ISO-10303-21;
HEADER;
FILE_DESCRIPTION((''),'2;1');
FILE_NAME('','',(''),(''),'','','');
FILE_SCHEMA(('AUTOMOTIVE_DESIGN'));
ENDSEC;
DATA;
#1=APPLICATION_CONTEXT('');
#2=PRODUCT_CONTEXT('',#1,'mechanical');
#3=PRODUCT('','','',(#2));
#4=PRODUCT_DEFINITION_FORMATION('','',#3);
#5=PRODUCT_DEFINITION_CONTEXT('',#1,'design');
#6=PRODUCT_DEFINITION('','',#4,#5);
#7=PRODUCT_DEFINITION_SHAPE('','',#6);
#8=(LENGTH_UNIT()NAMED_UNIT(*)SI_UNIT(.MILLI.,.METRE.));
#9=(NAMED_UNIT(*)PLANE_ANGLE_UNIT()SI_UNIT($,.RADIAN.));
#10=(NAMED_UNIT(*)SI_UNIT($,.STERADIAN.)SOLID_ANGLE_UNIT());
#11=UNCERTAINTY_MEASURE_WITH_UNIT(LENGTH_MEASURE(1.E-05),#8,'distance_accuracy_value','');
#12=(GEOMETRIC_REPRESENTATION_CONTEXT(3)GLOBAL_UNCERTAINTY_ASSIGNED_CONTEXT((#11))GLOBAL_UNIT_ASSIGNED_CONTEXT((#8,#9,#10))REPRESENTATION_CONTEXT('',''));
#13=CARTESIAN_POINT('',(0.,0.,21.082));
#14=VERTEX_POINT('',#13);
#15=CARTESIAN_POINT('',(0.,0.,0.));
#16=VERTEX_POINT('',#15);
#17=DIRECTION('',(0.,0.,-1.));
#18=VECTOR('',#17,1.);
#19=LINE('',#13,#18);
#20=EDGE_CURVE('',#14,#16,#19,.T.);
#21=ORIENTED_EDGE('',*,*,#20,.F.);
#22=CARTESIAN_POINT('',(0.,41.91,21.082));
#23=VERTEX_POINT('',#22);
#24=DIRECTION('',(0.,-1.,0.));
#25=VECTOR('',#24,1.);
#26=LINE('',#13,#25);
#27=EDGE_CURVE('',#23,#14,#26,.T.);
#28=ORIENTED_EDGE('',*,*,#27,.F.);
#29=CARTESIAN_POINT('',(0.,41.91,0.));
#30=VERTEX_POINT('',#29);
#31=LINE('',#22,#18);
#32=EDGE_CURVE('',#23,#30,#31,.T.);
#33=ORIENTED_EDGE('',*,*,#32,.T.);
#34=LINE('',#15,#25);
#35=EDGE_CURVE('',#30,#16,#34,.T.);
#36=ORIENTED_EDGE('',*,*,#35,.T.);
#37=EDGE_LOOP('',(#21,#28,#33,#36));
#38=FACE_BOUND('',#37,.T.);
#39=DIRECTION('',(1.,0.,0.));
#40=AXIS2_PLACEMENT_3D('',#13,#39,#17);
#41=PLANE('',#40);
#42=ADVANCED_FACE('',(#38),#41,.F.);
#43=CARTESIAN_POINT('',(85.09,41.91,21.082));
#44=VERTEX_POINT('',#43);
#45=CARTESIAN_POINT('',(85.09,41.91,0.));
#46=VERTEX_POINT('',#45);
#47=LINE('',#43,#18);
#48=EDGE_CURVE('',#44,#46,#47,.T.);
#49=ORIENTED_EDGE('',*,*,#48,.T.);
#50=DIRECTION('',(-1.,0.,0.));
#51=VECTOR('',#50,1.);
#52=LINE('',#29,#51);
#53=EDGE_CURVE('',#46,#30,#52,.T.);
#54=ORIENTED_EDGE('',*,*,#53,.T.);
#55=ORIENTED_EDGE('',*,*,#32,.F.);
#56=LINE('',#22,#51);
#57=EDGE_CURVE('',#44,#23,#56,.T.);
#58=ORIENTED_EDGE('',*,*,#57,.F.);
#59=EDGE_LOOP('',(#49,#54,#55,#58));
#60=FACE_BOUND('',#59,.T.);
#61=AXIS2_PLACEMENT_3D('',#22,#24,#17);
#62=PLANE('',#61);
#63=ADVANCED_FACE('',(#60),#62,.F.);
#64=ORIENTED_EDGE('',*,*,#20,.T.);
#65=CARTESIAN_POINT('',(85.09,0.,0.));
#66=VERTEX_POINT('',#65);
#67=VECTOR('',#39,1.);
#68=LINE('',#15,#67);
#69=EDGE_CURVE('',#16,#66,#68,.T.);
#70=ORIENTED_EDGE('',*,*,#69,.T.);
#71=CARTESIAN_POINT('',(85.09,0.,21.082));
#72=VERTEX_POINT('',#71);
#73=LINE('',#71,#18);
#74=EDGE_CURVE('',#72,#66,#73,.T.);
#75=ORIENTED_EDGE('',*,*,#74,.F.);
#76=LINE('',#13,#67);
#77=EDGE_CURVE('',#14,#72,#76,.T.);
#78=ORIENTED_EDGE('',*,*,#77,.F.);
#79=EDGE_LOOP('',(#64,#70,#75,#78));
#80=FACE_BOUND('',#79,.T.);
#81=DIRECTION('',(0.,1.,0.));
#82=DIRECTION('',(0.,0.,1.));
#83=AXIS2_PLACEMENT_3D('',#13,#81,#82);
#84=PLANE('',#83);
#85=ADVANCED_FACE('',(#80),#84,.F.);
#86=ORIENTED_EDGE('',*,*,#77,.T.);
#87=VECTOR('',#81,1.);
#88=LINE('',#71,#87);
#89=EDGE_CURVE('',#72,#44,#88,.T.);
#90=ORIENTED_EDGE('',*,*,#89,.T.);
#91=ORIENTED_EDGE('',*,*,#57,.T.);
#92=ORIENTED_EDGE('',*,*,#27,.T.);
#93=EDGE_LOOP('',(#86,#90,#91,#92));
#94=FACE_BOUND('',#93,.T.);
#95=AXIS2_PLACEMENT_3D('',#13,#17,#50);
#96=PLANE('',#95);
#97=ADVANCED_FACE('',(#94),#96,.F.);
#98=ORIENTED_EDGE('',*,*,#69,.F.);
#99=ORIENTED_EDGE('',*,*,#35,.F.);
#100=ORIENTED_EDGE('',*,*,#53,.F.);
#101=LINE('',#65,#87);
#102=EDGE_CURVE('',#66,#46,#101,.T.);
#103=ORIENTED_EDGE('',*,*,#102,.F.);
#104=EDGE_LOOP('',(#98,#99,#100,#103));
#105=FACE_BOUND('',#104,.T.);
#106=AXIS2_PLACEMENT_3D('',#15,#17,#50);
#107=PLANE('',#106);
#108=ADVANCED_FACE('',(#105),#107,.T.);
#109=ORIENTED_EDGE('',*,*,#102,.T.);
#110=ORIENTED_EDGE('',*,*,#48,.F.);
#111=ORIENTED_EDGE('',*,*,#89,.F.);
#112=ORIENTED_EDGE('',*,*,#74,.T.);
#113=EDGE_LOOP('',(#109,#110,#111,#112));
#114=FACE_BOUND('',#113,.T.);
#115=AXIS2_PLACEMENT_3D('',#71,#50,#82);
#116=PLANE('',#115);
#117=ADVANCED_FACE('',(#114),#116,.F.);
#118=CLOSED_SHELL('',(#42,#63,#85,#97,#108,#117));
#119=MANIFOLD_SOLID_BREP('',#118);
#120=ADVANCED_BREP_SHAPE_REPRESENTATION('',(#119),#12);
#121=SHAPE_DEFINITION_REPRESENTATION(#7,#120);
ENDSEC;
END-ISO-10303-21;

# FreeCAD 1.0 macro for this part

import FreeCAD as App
import Part
import Sketcher
Q = App.Units.Quantity


def add_polygon(sketch, points):
    """Adds a closed chain of lines whose ends are joined by coincident constraints."""
    first, n = sketch.GeometryCount, len(points)
    for a, b in zip(points, points[1:] + points[:1]):
        sketch.addGeometry(Part.LineSegment(App.Vector(*a, 0), App.Vector(*b, 0)), False)
    for i in range(n):
        sketch.addConstraint(Sketcher.Constraint("Coincident", first + i, 2, first + (i + 1) % n, 1))

doc = App.newDocument("Part")
params = doc.addObject("Spreadsheet::Sheet", "Params")
for row, (alias, value) in enumerate([
    ("sketch1_width", "3.35 in"),
    ("sketch1_height", "1.65 in"),
    ("pad1_length", "0.83 in"),
], start=1):
    params.set(f"A{row}", alias)
    params.set(f"B{row}", "=" + value)
    params.setAlias(f"B{row}", alias)

body = doc.addObject("PartDesign::Body", "Body")

sketch1 = body.newObject("Sketcher::SketchObject", "Sketch")
sketch1.AttachmentSupport = (doc.getObject("XY_Plane"), [""])
sketch1.MapMode = "FlatFace"
add_polygon(sketch1, [(0, 41.91), (0, 0), (85.09, 0), (85.09, 41.91)])
sketch1.addConstraint([
    Sketcher.Constraint("Vertical", 0),
    Sketcher.Constraint("Horizontal", 1),
    Sketcher.Constraint("Vertical", 2),
    Sketcher.Constraint("Horizontal", 3),
    Sketcher.Constraint("Coincident", 0, 2, -1, 1),
    Sketcher.Constraint("DistanceX", 1, 1, 1, 2, Q("3.35 in")),
    Sketcher.Constraint("DistanceY", 0, 2, 0, 1, Q("1.65 in")),
])
sketch1.setExpression("Constraints[9]", "Params.sketch1_width")
sketch1.setExpression("Constraints[10]", "Params.sketch1_height")
pad1 = body.newObject("PartDesign::Pad", "Pad")
pad1.Profile = sketch1
pad1.setExpression("Length", "Params.pad1_length")

doc.recompute()
